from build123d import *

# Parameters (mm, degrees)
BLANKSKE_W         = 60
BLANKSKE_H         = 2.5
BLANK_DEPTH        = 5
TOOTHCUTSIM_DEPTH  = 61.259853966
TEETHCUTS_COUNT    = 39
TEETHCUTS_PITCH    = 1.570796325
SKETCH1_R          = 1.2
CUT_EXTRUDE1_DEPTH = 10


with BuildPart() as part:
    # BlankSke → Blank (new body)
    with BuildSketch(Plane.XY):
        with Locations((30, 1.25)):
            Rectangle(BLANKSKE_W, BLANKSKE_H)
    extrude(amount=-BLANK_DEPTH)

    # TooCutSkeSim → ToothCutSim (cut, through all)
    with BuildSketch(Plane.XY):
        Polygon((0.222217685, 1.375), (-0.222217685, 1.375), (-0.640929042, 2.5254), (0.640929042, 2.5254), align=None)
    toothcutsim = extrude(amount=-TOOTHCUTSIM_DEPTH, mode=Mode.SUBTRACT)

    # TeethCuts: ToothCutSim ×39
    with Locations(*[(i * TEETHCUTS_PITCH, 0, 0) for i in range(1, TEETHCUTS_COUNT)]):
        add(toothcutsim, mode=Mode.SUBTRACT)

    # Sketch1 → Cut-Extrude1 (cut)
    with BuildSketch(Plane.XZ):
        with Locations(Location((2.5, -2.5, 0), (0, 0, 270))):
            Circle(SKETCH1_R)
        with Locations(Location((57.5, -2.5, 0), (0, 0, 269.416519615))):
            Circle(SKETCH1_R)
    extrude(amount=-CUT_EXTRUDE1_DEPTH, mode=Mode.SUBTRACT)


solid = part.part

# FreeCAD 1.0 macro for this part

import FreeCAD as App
import Part
import Sketcher
from FreeCAD import Vector
Q = App.Units.Quantity

doc = App.newDocument("Part")
body = doc.addObject("PartDesign::Body", "Body")

# Sketch on XY plane
sketch1 = body.newObject("Sketcher::SketchObject", "Sketch")
sketch1.AttachmentSupport = (doc.getObject("XY_Plane"), [""])
sketch1.MapMode = "FlatFace"
sketch1.addGeometry(Part.LineSegment(Vector(0, 2.5, 0), Vector(0, 0, 0)), False)
sketch1.addGeometry(Part.LineSegment(Vector(0, 0, 0), Vector(60, 0, 0)), False)
sketch1.addGeometry(Part.LineSegment(Vector(60, 0, 0), Vector(60, 2.5, 0)), False)
sketch1.addGeometry(Part.LineSegment(Vector(60, 2.5, 0), Vector(0, 2.5, 0)), False)
sketch1.addConstraint(Sketcher.Constraint("Coincident", 0, 2, 1, 1))
sketch1.addConstraint(Sketcher.Constraint("Coincident", 1, 2, 2, 1))
sketch1.addConstraint(Sketcher.Constraint("Coincident", 2, 2, 3, 1))
sketch1.addConstraint(Sketcher.Constraint("Coincident", 3, 2, 0, 1))
sketch1.addConstraint(Sketcher.Constraint("Vertical", 0))
sketch1.addConstraint(Sketcher.Constraint("Horizontal", 1))
sketch1.addConstraint(Sketcher.Constraint("Vertical", 2))
sketch1.addConstraint(Sketcher.Constraint("Horizontal", 3))
sketch1.addConstraint(Sketcher.Constraint("Coincident", 0, 2, -1, 1))
sketch1.addConstraint(Sketcher.Constraint("DistanceX", 1, 1, 1, 2, 60.0))
sketch1.addConstraint(Sketcher.Constraint("DistanceY", 0, 2, 0, 1, 2.5))
pad1 = body.newObject("PartDesign::Pad", "Pad")
pad1.Profile = sketch1
pad1.Length = 5
pad1.Reversed = True

# Sketch on XY plane
sketch2 = body.newObject("Sketcher::SketchObject", "Sketch001")
sketch2.AttachmentSupport = (doc.getObject("XY_Plane"), [""])
sketch2.MapMode = "FlatFace"
sketch2.addGeometry(Part.LineSegment(Vector(-0.22, 1.38, 0), Vector(0.22, 1.38, 0)), False)
sketch2.addGeometry(Part.LineSegment(Vector(0.22, 1.38, 0), Vector(0.64, 2.53, 0)), False)
sketch2.addGeometry(Part.LineSegment(Vector(0.64, 2.53, 0), Vector(-0.64, 2.53, 0)), False)
sketch2.addGeometry(Part.LineSegment(Vector(-0.64, 2.53, 0), Vector(-0.22, 1.38, 0)), False)
sketch2.addConstraint(Sketcher.Constraint("Coincident", 0, 2, 1, 1))
sketch2.addConstraint(Sketcher.Constraint("Coincident", 1, 2, 2, 1))
sketch2.addConstraint(Sketcher.Constraint("Coincident", 2, 2, 3, 1))
sketch2.addConstraint(Sketcher.Constraint("Coincident", 3, 2, 0, 1))
sketch2.addConstraint(Sketcher.Constraint("Horizontal", 0))
sketch2.addConstraint(Sketcher.Constraint("Horizontal", 2))
sketch2.addConstraint(Sketcher.Constraint("Equal", 1, 3))
sketch2.addConstraint(Sketcher.Constraint("Angle", 1, Q("70 deg")))
sketch2.addConstraint(Sketcher.Constraint("DistanceY", -1, 1, 0, 2, 1.375))
sketch2.addConstraint(Sketcher.Constraint("DistanceX", 2, 2, 2, 1, 1.281858))
sketch2.addConstraint(Sketcher.Constraint("DistanceY", -1, 1, 1, 2, 2.5254))
sketch2.addConstraint(Sketcher.Constraint("DistanceX", -1, 1, 1, 2, 0.640929))
pocket1 = body.newObject("PartDesign::Pocket", "Pocket")
pocket1.Profile = sketch2
pocket1.Type = "ThroughAll"
doc.recompute()

linearpattern = body.newObject("PartDesign::LinearPattern", "LinearPattern")
linearpattern.Originals = [pocket1]
linearpattern.Direction = (doc.getObject("X_Axis"), [""])
linearpattern.Mode = "offset"
linearpattern.Offset = 1.570796
linearpattern.Occurrences = 39
body.Tip = linearpattern

# Sketch on XZ plane
sketch3 = body.newObject("Sketcher::SketchObject", "Sketch002")
sketch3.AttachmentSupport = (doc.getObject("XZ_Plane"), [""])
sketch3.MapMode = "FlatFace"
sketch3.addGeometry(Part.Circle(Vector(2.5, -2.5, 0), Vector(0, 0, 1), 1.2), False)
sketch3.addGeometry(Part.Circle(Vector(57.5, -2.5, 0), Vector(0, 0, 1), 1.2), False)
sketch3.addConstraint(Sketcher.Constraint("Equal", 0, 1))
sketch3.addConstraint(Sketcher.Constraint("Horizontal", 0, 3, 1, 3))
sketch3.addConstraint(Sketcher.Constraint("Diameter", 0, 2.4))
sketch3.addConstraint(Sketcher.Constraint("DistanceX", 0, 3, 1, 3, 55.0))
sketch3.addConstraint(Sketcher.Constraint("DistanceX", -1, 1, 0, 3, 2.5))
sketch3.addConstraint(Sketcher.Constraint("DistanceY", 0, 3, -1, 1, 2.5))
pocket2 = body.newObject("PartDesign::Pocket", "Pocket001")
pocket2.Profile = sketch3
pocket2.Length = 10

doc.recompute()
